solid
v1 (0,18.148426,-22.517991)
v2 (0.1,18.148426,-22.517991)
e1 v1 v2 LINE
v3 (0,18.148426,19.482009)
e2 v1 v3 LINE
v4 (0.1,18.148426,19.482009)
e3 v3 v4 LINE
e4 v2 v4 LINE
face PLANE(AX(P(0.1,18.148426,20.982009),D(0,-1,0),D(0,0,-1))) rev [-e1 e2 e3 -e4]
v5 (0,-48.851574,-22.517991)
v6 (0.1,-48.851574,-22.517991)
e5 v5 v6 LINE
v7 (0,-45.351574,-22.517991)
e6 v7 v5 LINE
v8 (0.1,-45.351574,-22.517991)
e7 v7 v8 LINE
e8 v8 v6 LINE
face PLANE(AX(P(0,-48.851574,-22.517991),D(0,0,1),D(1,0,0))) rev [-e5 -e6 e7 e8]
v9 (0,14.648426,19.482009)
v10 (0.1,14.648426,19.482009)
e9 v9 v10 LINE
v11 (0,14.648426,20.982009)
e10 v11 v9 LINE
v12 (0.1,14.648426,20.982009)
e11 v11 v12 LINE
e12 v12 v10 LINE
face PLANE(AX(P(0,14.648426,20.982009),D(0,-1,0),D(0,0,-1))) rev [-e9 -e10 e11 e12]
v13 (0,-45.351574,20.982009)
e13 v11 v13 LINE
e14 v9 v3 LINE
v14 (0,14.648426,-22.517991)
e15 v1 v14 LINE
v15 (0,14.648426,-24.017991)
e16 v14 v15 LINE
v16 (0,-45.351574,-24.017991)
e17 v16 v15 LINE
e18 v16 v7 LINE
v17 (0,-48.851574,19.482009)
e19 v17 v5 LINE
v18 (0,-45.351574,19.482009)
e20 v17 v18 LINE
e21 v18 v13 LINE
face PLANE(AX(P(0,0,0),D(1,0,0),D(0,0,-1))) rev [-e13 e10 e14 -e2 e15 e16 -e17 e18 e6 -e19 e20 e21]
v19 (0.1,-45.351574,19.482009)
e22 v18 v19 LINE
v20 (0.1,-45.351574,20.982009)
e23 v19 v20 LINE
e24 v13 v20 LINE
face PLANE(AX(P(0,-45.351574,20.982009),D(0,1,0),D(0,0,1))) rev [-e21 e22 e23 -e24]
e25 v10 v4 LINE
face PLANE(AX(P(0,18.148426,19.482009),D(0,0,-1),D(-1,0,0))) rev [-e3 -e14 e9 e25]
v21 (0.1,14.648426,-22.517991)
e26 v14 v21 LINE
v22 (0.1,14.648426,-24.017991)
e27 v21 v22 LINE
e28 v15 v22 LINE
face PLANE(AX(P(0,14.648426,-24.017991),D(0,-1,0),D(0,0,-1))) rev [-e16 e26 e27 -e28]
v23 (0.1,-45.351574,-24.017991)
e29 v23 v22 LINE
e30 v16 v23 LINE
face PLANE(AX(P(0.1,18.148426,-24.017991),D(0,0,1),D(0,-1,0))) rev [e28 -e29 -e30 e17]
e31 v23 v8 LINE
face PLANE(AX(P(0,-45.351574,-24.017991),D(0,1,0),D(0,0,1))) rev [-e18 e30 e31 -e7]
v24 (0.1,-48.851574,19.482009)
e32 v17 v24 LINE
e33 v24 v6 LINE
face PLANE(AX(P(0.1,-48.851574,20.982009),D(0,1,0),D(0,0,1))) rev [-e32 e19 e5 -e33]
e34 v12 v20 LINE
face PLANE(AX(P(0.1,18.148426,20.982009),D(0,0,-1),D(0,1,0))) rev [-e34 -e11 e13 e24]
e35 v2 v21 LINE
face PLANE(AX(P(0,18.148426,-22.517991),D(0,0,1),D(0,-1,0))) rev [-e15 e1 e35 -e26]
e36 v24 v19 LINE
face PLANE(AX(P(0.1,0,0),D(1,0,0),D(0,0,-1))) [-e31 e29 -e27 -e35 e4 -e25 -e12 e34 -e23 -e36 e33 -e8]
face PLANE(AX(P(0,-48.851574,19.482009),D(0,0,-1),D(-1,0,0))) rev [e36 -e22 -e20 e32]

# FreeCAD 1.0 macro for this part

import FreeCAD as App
import Part
import Sketcher

V = App.Vector


def add_polygon(sketch, points):
    """Adds a closed chain of lines whose ends are joined by coincident constraints."""
    first, n = sketch.GeometryCount, len(points)
    for a, b in zip(points, points[1:] + points[:1]):
        sketch.addGeometry(Part.LineSegment(App.Vector(*a, 0), App.Vector(*b, 0)), False)
    for i in range(n):
        sketch.addConstraint(Sketcher.Constraint("Coincident", first + i, 2, first + (i + 1) % n, 1))

doc = App.newDocument("Part")
body = doc.addObject("PartDesign::Body", "Body")

# Sketch on YZ plane
sketch1 = body.newObject("Sketcher::SketchObject", "Sketch")
sketch1.AttachmentSupport = (doc.getObject("YZ_Plane"), [""])
sketch1.MapMode = "FlatFace"
add_polygon(sketch1, [(18, 21), (-49, 21), (-49, -24), (18, -24)])  # lines 0-3
sketch1.addConstraint(Sketcher.Constraint("Horizontal", 0))
sketch1.addConstraint(Sketcher.Constraint("Vertical", 1))
sketch1.addConstraint(Sketcher.Constraint("Horizontal", 2))
sketch1.addConstraint(Sketcher.Constraint("Vertical", 3))
sketch1.addConstraint(Sketcher.Constraint("DistanceX", 0, 2, 0, 1, 67.0))
sketch1.addConstraint(Sketcher.Constraint("DistanceY", 1, 2, 1, 1, 45.0))
sketch1.addConstraint(Sketcher.Constraint("DistanceY", -1, 1, 0, 2, 20.982009))
sketch1.addConstraint(Sketcher.Constraint("DistanceX", 0, 2, -1, 1, 48.851574))
pad1 = body.newObject("PartDesign::Pad", "Pad")
pad1.Profile = sketch1
pad1.Length = 0.1

# Sketch on YZ plane
sketch2 = body.newObject("Sketcher::SketchObject", "Sketch001")
sketch2.AttachmentSupport = (doc.getObject("YZ_Plane"), [""])
sketch2.MapMode = "FlatFace"
sketch2.AttachmentOffset = App.Placement(V(0, 0, 0.1), App.Rotation())
add_polygon(sketch2, [(18.1, 21), (14.6, 21), (14.6, 19.5), (18.1, 19.5)])  # lines 0-3
add_polygon(sketch2, [(18.1, -22.5), (14.6, -22.5), (14.6, -24), (18.1, -24)])  # lines 4-7
add_polygon(sketch2, [(-45.4, 21), (-48.9, 21), (-48.9, 19.5), (-45.4, 19.5)])  # lines 8-11
add_polygon(sketch2, [(-45.4, -22.5), (-48.9, -22.5), (-48.9, -24), (-45.4, -24)])  # lines 12-15
sketch2.addConstraint(Sketcher.Constraint("Horizontal", 0))
sketch2.addConstraint(Sketcher.Constraint("Vertical", 1))
sketch2.addConstraint(Sketcher.Constraint("Horizontal", 2))
sketch2.addConstraint(Sketcher.Constraint("Vertical", 3))
sketch2.addConstraint(Sketcher.Constraint("Horizontal", 4))
sketch2.addConstraint(Sketcher.Constraint("Vertical", 5))
sketch2.addConstraint(Sketcher.Constraint("Horizontal", 6))
sketch2.addConstraint(Sketcher.Constraint("Vertical", 7))
sketch2.addConstraint(Sketcher.Constraint("Horizontal", 8))
sketch2.addConstraint(Sketcher.Constraint("Vertical", 9))
sketch2.addConstraint(Sketcher.Constraint("Horizontal", 10))
sketch2.addConstraint(Sketcher.Constraint("Vertical", 11))
sketch2.addConstraint(Sketcher.Constraint("Horizontal", 12))
sketch2.addConstraint(Sketcher.Constraint("Vertical", 13))
sketch2.addConstraint(Sketcher.Constraint("Horizontal", 14))
sketch2.addConstraint(Sketcher.Constraint("Vertical", 15))
sketch2.addConstraint(Sketcher.Constraint("Horizontal", 3, 2, 8, 2))
sketch2.addConstraint(Sketcher.Constraint("Horizontal", 2, 2, 9, 2))
sketch2.addConstraint(Sketcher.Constraint("Horizontal", 7, 2, 12, 2))
sketch2.addConstraint(Sketcher.Constraint("Horizontal", 6, 2, 13, 2))
sketch2.addConstraint(Sketcher.Constraint("Vertical", 1, 2, 4, 2))
sketch2.addConstraint(Sketcher.Constraint("Vertical", 3, 2, 6, 2))
sketch2.addConstraint(Sketcher.Constraint("Vertical", 9, 2, 12, 2))
sketch2.addConstraint(Sketcher.Constraint("Vertical", 11, 2, 14, 2))
sketch2.addConstraint(Sketcher.Constraint("Equal", 6, 8))
sketch2.addConstraint(Sketcher.Constraint("Equal", 3, 5))
sketch2.addConstraint(Sketcher.Constraint("DistanceX", 0, 2, 0, 1, 3.5))
sketch2.addConstraint(Sketcher.Constraint("DistanceY", 1, 2, 1, 1, 1.5))
sketch2.addConstraint(Sketcher.Constraint("DistanceY", 4, 2, 1, 2, 42.0))
sketch2.addConstraint(Sketcher.Constraint("DistanceX", 8, 2, 3, 2, 67.0))
sketch2.addConstraint(Sketcher.Constraint("DistanceY", -1, 1, 0, 2, 20.982009))
sketch2.addConstraint(Sketcher.Constraint("DistanceX", -1, 1, 0, 2, 14.648426))
pocket1 = body.newObject("PartDesign::Pocket", "Pocket")
pocket1.Profile = sketch2
pocket1.Length = 0.1

doc.recompute()
